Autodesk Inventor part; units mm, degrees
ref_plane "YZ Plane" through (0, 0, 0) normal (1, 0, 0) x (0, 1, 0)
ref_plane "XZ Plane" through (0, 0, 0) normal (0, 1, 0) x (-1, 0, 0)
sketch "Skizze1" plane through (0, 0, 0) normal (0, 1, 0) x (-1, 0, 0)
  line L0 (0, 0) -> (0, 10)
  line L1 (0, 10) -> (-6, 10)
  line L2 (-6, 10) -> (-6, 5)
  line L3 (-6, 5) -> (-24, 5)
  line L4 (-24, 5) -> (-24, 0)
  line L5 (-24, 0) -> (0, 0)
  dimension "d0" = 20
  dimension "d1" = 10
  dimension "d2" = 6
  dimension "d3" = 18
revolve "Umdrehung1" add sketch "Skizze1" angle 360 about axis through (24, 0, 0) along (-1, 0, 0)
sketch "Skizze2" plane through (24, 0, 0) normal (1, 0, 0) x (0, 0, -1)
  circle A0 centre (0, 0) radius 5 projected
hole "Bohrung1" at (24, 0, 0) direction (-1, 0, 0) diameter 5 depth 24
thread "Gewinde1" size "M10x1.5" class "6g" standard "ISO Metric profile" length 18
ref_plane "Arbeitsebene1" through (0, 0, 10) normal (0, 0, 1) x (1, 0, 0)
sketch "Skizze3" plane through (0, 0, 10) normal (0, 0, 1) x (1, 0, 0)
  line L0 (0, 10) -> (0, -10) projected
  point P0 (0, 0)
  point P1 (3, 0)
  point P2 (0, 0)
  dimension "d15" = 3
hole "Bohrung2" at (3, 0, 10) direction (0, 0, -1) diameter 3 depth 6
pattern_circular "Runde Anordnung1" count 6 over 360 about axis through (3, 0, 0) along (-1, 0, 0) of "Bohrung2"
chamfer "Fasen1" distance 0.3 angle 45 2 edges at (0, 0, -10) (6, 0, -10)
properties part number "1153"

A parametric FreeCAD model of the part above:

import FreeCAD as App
import Part
import Sketcher
from FreeCAD import Vector


def edges_at(feature, points):
    """Names of the edges that pass closest to the given points."""
    edges = feature.Shape.Edges
    near = lambda p: min(range(len(edges)), key=lambda i: edges[i].distToShape(Part.Vertex(*p))[0])
    return sorted({f"Edge{near(p) + 1}" for p in points})


def add_polygon(sketch, points):
    """Adds a closed chain of lines whose ends are joined by coincident constraints."""
    first, n = sketch.GeometryCount, len(points)
    for a, b in zip(points, points[1:] + points[:1]):
        sketch.addGeometry(Part.LineSegment(App.Vector(*a, 0), App.Vector(*b, 0)), False)
    for i in range(n):
        sketch.addConstraint(Sketcher.Constraint("Coincident", first + i, 2, first + (i + 1) % n, 1))

doc = App.newDocument("Part")
body = doc.addObject("PartDesign::Body", "Body")

# Sketch on XZ plane
sketch1 = body.newObject("Sketcher::SketchObject", "Sketch")
sketch1.AttachmentSupport = (doc.getObject("XZ_Plane"), [""])
sketch1.MapMode = "FlatFace"
add_polygon(sketch1, [(24, 0), (0, 0), (0, 10), (6, 10), (6, 5), (24, 5)])  # lines 0-5
sketch1.addConstraint([
    Sketcher.Constraint("Horizontal", 0),
    Sketcher.Constraint("Vertical", 1),
    Sketcher.Constraint("Horizontal", 2),
    Sketcher.Constraint("Vertical", 3),
    Sketcher.Constraint("Horizontal", 4),
    Sketcher.Constraint("Vertical", 5),
    Sketcher.Constraint("Coincident", 0, 2, -1, 1),
    Sketcher.Constraint("Equal", 3, 5),
    Sketcher.Constraint("DistanceX", 2, 1, 2, 2, 6.0),
    Sketcher.Constraint("DistanceX", 4, 1, 4, 2, 18.0),
    Sketcher.Constraint("DistanceY", 1, 1, 1, 2, 10.0),
])
revolution = body.newObject("PartDesign::Revolution", "Revolution")
revolution.Profile = sketch1
revolution.ReferenceAxis = (sketch1, ["H_Axis"])
revolution.Angle = 360

# Sketch on YZ plane
sketch2 = body.newObject("Sketcher::SketchObject", "Sketch001")
sketch2.AttachmentSupport = (doc.getObject("YZ_Plane"), [""])
sketch2.MapMode = "FlatFace"
sketch2.AttachmentOffset = App.Placement(Vector(0, 0, 24), App.Rotation())
sketch2.addGeometry(Part.Circle(Vector(0, 0, 0), Vector(0, 0, 1), 2.5), False)
sketch2.addConstraint([
    Sketcher.Constraint("Coincident", 0, 3, -1, 1),
    Sketcher.Constraint("Diameter", 0, 5.0),
])
doc.recompute()
hole = body.newObject("PartDesign::Hole", "Hole")
hole.Profile = sketch2
hole.ThreadType = "None"
hole.Diameter = 5
hole.DepthType = "Dimension"
hole.Depth = 24
hole.DrillPoint = "Flat"

# Sketch on XY plane
sketch3 = body.newObject("Sketcher::SketchObject", "Sketch002")
sketch3.AttachmentSupport = (doc.getObject("XY_Plane"), [""])
sketch3.MapMode = "FlatFace"
sketch3.AttachmentOffset = App.Placement(Vector(0, 0, 10), App.Rotation())
sketch3.addGeometry(Part.Circle(Vector(3, 0, 0), Vector(0, 0, 1), 1.5), False)
sketch3.addConstraint([
    Sketcher.Constraint("PointOnObject", 0, 3, -1),
    Sketcher.Constraint("Diameter", 0, 3.0),
    Sketcher.Constraint("DistanceX", -1, 1, 0, 3, 3.0),
])
doc.recompute()
hole2 = body.newObject("PartDesign::Hole", "Hole001")
hole2.Profile = sketch3
hole2.ThreadType = "None"
hole2.Diameter = 3
hole2.DepthType = "Dimension"
hole2.Depth = 6
hole2.DrillPoint = "Flat"
doc.recompute()

polarpattern = body.newObject("PartDesign::PolarPattern", "PolarPattern")
polarpattern.Originals = [hole2]
polarpattern.Axis = (doc.getObject("X_Axis"), [""])
polarpattern.Angle = 360
polarpattern.Occurrences = 6
body.Tip = polarpattern
doc.recompute()

chamfer = body.newObject("PartDesign::Chamfer", "Chamfer")
chamfer.Base = (polarpattern, edges_at(polarpattern, [(0, 0, -10), (6, 0, -10)]))
chamfer.Size = 0.3

doc.recompute()
